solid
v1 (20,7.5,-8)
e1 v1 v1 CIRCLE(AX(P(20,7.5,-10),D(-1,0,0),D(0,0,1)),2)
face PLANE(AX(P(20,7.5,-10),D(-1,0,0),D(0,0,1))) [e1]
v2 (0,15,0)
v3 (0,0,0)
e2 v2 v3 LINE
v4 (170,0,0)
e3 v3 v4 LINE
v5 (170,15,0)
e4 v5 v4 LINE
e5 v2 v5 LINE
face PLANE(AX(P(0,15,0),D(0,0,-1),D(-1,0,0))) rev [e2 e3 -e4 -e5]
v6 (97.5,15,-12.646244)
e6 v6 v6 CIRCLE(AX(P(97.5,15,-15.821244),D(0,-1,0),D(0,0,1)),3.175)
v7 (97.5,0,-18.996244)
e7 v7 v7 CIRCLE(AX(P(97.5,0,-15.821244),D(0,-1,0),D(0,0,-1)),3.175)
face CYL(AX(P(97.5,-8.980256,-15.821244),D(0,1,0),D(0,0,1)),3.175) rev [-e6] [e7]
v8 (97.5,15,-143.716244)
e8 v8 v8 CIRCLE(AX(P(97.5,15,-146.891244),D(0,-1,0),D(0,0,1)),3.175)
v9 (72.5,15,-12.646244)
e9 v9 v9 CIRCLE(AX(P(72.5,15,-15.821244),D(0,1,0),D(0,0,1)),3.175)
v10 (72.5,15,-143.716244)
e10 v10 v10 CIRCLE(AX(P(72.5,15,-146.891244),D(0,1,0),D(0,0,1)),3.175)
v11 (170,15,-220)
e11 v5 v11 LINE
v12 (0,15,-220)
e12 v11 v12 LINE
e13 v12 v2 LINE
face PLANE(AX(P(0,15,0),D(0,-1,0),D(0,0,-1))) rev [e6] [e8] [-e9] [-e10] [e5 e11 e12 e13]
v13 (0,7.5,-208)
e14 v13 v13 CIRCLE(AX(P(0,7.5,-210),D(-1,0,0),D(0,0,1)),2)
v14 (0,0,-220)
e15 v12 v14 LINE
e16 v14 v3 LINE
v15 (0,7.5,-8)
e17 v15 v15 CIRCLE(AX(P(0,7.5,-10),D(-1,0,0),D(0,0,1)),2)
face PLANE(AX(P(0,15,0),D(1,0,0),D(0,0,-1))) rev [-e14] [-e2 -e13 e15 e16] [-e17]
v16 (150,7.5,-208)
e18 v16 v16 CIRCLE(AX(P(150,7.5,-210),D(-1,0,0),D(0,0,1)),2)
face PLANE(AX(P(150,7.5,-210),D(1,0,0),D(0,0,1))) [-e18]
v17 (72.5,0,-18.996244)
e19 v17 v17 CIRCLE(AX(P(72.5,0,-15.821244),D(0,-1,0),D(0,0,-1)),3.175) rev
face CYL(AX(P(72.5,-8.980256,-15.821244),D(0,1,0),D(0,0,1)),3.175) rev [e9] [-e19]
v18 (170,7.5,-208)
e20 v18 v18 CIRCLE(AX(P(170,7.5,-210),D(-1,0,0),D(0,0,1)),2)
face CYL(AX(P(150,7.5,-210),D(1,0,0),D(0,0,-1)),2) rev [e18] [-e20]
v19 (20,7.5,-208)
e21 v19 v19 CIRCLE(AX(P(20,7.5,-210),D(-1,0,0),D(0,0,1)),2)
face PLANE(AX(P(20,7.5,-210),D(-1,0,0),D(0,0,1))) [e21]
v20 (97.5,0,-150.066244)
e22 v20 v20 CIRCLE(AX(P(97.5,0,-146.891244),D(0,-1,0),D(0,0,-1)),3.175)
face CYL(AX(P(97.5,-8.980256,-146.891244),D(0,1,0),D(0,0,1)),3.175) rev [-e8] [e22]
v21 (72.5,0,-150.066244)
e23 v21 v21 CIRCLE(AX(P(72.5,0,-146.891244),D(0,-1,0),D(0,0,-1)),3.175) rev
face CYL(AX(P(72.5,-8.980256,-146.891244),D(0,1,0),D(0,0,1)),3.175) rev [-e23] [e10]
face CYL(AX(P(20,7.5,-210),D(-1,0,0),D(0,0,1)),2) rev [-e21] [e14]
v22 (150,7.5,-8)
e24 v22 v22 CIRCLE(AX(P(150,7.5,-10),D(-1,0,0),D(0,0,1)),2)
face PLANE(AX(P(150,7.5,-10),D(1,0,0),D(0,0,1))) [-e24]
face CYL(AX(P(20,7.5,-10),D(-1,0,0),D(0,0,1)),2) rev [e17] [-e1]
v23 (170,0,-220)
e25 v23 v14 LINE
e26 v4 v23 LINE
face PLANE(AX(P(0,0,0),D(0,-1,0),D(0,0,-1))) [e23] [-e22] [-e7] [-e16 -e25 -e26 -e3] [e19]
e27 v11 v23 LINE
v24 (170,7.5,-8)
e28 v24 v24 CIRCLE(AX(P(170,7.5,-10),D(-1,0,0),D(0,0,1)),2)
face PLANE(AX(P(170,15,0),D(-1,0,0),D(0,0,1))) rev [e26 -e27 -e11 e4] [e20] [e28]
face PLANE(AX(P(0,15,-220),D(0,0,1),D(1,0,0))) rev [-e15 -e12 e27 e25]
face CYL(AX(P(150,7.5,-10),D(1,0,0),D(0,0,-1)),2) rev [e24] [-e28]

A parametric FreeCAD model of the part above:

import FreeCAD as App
import Part
import Sketcher


def add_polygon(sketch, points):
    """Adds a closed chain of lines whose ends are joined by coincident constraints."""
    first, n = sketch.GeometryCount, len(points)
    for a, b in zip(points, points[1:] + points[:1]):
        sketch.addGeometry(Part.LineSegment(App.Vector(*a, 0), App.Vector(*b, 0)), False)
    for i in range(n):
        sketch.addConstraint(Sketcher.Constraint("Coincident", first + i, 2, first + (i + 1) % n, 1))

doc = App.newDocument("Part")
body = doc.addObject("PartDesign::Body", "Body")

sketch1 = body.newObject("Sketcher::SketchObject", "Sketch")
sketch1.AttachmentSupport = (doc.getObject("XZ_Plane"), [""])
sketch1.MapMode = "FlatFace"
add_polygon(sketch1, [(0, -220), (0, 0), (170, 0), (170, -220)])
sketch1.addConstraint(Sketcher.Constraint("Vertical", 0))
sketch1.addConstraint(Sketcher.Constraint("Horizontal", 1))
sketch1.addConstraint(Sketcher.Constraint("Vertical", 2))
sketch1.addConstraint(Sketcher.Constraint("Horizontal", 3))
sketch1.addConstraint(Sketcher.Constraint("Coincident", 0, 2, -1, 1))
sketch1.addConstraint(Sketcher.Constraint("DistanceX", 1, 1, 1, 2, 170.0))
sketch1.addConstraint(Sketcher.Constraint("DistanceY", 0, 1, 0, 2, 220.0))
pad1 = body.newObject("PartDesign::Pad", "Pad")
pad1.Profile = sketch1
pad1.Length = 15
pad1.Reversed = True

sketch2 = body.newObject("Sketcher::SketchObject", "Sketch001")
sketch2.AttachmentSupport = (doc.getObject("YZ_Plane"), [""])
sketch2.MapMode = "FlatFace"
sketch2.addGeometry(Part.Circle(App.Vector(7.5, -10, 0), App.Vector(0, 0, 1), 2), False)
sketch2.addGeometry(Part.Circle(App.Vector(7.5, -210, 0), App.Vector(0, 0, 1), 2), False)
sketch2.addConstraint(Sketcher.Constraint("Equal", 0, 1))
sketch2.addConstraint(Sketcher.Constraint("Vertical", 0, 3, 1, 3))
sketch2.addConstraint(Sketcher.Constraint("Diameter", 0, 4.0))
sketch2.addConstraint(Sketcher.Constraint("DistanceY", 0, 3, -1, 1, 10.0))
sketch2.addConstraint(Sketcher.Constraint("DistanceY", 1, 3, -1, 1, 210.0))
sketch2.addConstraint(Sketcher.Constraint("DistanceX", -1, 1, 0, 3, 7.5))
pocket1 = body.newObject("PartDesign::Pocket", "Pocket")
pocket1.Profile = sketch2
pocket1.Length = 20
pocket1.Reversed = True

sketch3 = body.newObject("Sketcher::SketchObject", "Sketch002")
sketch3.AttachmentSupport = (doc.getObject("XZ_Plane"), [""])
sketch3.MapMode = "FlatFace"
sketch3.AttachmentOffset = App.Placement(App.Vector(0, 0, -15), App.Rotation())
sketch3.addGeometry(Part.Circle(App.Vector(72.5, -15.8, 0), App.Vector(0, 0, 1), 3.2), False)
sketch3.addGeometry(Part.Circle(App.Vector(72.5, -146.9, 0), App.Vector(0, 0, 1), 3.2), False)
sketch3.addConstraint(Sketcher.Constraint("Equal", 0, 1))
sketch3.addConstraint(Sketcher.Constraint("Vertical", 0, 3, 1, 3))
sketch3.addConstraint(Sketcher.Constraint("Diameter", 0, 6.35))
sketch3.addConstraint(Sketcher.Constraint("DistanceX", -1, 1, 0, 3, 72.5))
sketch3.addConstraint(Sketcher.Constraint("DistanceY", 1, 3, 0, 3, 131.07))
sketch3.addConstraint(Sketcher.Constraint("DistanceY", 0, 3, -1, 1, 15.821244))
pocket2 = body.newObject("PartDesign::Pocket", "Pocket001")
pocket2.Profile = sketch3
pocket2.Length = 15
pocket2.Reversed = True
doc.recompute()

datumplane = body.newObject("PartDesign::Plane", "DatumPlane")
datumplane.AttachmentSupport = (doc.getObject("YZ_Plane"), [""])
datumplane.MapMode = "FlatFace"
datumplane.AttachmentOffset = App.Placement(App.Vector(0, 0, 85), App.Rotation())
mirrored = body.newObject("PartDesign::Mirrored", "Mirrored")
mirrored.Originals = [pocket1, pocket2]
mirrored.MirrorPlane = (datumplane, [""])
body.Tip = mirrored

doc.recompute()
